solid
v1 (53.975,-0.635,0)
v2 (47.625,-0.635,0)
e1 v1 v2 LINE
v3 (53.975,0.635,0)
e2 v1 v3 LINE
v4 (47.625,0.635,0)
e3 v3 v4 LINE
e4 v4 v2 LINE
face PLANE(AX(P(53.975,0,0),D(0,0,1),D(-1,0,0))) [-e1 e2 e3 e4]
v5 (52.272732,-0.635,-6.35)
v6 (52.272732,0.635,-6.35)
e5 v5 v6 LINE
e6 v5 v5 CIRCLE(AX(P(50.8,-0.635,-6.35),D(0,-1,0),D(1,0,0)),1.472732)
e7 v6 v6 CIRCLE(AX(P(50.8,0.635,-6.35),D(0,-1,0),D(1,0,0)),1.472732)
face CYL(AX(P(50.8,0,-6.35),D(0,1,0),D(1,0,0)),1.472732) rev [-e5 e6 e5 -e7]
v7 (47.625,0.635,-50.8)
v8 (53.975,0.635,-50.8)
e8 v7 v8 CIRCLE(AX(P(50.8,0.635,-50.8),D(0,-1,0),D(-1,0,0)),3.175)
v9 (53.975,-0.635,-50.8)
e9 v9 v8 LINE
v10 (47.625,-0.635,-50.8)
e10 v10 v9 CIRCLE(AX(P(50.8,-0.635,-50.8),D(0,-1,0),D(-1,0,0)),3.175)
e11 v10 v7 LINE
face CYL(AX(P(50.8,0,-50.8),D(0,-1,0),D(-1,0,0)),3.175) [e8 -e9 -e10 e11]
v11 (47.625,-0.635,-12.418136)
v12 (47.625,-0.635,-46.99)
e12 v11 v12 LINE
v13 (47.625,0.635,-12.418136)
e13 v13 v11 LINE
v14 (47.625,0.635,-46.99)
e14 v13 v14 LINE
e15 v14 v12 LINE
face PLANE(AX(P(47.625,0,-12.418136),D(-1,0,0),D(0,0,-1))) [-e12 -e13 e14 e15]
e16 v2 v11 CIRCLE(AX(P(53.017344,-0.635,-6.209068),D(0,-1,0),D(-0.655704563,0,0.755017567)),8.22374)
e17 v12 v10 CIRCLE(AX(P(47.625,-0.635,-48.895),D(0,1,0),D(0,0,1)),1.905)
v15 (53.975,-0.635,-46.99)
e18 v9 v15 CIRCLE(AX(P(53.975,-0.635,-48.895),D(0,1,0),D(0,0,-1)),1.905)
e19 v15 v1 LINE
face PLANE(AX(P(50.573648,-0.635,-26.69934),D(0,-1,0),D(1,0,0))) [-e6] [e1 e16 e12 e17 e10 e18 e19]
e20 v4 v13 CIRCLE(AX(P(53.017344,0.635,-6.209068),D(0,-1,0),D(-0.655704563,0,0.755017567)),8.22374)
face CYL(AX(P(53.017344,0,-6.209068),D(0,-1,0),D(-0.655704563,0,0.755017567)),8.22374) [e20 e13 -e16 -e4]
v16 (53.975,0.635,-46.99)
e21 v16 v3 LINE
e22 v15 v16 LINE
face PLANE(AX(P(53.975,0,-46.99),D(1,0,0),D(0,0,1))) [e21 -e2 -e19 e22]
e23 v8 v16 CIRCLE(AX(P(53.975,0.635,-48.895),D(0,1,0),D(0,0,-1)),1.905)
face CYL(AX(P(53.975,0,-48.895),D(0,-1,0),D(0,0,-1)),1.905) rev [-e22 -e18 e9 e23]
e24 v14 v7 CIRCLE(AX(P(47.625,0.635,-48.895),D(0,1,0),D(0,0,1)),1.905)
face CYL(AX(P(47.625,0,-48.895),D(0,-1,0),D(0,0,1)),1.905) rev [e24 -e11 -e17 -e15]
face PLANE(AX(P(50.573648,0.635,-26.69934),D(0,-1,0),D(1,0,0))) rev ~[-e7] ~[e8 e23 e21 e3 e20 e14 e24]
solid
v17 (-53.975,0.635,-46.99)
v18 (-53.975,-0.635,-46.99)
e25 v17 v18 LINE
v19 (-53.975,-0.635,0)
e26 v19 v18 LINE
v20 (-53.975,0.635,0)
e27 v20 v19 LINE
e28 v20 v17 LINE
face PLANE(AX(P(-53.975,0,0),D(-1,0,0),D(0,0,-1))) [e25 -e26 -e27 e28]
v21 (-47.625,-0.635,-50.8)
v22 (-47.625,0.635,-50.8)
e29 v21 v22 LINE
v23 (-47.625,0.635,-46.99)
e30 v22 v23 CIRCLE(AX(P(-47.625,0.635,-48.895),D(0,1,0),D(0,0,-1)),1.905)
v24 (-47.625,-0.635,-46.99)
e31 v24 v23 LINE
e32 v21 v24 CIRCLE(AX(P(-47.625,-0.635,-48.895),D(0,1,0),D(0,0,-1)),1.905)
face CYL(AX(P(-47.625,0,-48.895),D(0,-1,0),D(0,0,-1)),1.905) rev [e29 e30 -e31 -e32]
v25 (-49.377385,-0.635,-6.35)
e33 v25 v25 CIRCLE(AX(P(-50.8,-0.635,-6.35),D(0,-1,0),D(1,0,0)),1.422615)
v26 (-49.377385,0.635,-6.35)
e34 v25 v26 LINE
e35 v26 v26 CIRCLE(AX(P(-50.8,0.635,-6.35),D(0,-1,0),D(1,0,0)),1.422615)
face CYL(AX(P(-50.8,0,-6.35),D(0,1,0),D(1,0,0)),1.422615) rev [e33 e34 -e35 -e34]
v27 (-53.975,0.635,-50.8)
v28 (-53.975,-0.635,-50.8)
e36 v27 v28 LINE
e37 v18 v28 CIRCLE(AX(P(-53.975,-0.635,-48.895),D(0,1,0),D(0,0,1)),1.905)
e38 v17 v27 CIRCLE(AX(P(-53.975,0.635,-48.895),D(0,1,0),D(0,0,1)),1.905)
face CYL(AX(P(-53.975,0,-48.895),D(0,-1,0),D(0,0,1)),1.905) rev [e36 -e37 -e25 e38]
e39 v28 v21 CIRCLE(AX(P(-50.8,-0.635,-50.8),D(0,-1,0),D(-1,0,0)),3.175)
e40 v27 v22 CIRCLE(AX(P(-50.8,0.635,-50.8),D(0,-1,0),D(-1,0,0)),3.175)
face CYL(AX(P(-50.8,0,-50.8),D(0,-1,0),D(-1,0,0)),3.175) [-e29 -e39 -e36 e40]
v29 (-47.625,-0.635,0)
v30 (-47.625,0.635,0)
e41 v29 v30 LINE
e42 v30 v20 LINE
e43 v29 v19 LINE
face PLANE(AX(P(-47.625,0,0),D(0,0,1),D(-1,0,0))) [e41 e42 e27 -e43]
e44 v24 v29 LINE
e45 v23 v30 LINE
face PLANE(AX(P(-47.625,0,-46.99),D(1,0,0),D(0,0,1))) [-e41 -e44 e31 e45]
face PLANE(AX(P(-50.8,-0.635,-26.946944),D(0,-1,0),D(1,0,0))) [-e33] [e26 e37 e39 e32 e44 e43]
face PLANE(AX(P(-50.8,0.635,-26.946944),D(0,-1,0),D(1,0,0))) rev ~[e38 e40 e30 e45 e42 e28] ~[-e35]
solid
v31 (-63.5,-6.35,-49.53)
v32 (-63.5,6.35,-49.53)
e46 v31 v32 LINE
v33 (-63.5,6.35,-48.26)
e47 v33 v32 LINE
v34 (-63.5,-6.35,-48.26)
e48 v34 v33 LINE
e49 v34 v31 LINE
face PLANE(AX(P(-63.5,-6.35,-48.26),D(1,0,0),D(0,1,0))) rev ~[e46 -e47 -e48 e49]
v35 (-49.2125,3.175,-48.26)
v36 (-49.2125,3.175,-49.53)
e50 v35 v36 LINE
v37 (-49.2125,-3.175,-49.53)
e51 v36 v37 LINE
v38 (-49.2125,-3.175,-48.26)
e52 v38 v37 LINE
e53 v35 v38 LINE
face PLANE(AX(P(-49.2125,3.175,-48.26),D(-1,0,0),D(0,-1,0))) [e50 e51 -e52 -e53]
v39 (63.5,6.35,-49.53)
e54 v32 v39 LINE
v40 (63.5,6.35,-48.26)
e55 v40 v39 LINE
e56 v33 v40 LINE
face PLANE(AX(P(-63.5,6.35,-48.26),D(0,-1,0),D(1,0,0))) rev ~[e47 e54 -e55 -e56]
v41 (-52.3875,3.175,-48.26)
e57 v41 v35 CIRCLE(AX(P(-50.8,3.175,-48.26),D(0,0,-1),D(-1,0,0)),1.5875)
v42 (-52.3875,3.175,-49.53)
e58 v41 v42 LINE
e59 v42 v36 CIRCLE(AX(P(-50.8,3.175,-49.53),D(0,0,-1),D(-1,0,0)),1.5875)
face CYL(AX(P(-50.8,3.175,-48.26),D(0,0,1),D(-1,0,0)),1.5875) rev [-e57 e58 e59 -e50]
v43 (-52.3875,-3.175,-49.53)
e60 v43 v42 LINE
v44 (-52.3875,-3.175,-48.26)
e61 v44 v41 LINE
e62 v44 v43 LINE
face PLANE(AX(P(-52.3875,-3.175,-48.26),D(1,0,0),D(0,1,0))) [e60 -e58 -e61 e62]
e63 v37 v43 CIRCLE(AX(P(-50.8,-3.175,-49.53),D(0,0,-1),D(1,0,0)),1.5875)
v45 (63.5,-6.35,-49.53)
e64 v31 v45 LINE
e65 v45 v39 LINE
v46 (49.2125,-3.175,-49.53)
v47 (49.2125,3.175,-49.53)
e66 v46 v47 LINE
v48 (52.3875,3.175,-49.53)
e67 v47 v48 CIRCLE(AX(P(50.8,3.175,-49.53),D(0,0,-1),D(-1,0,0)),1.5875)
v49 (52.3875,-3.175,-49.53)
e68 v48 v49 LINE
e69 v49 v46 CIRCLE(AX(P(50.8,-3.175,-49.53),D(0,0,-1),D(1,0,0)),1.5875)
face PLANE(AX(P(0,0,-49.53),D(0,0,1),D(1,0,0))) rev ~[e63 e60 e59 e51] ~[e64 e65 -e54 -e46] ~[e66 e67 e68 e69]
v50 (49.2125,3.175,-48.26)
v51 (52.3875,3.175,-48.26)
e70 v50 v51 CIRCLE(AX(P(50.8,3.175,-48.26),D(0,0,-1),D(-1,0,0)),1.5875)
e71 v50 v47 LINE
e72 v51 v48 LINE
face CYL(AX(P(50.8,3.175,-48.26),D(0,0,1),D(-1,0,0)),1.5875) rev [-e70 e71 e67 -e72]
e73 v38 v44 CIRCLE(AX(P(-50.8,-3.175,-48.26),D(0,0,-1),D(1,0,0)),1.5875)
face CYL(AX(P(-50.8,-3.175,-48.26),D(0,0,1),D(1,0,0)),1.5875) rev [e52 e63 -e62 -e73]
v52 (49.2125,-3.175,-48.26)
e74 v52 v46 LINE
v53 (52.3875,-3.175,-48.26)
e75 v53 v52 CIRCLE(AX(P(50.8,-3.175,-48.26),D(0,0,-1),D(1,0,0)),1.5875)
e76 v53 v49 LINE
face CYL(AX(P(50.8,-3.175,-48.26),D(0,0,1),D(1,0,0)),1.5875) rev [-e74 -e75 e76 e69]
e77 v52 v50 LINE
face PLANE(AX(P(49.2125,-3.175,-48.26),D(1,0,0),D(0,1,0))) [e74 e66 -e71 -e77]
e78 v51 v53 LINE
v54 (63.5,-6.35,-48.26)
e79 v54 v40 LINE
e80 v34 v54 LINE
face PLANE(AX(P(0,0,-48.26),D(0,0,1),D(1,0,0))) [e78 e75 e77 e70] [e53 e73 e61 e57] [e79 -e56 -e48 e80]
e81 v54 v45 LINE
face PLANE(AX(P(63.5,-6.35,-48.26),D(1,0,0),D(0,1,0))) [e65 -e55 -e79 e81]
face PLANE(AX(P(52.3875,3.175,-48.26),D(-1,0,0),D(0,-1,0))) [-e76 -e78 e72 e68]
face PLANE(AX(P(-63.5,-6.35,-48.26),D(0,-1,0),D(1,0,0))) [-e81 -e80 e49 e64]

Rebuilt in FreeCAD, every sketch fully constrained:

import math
import FreeCAD as App
import Part
import Sketcher
from FreeCAD import Vector
Q = App.Units.Quantity


def add_polygon(sketch, points):
    """Adds a closed chain of lines whose ends are joined by coincident constraints."""
    first, n = sketch.GeometryCount, len(points)
    for a, b in zip(points, points[1:] + points[:1]):
        sketch.addGeometry(Part.LineSegment(App.Vector(*a, 0), App.Vector(*b, 0)), False)
    for i in range(n):
        sketch.addConstraint(Sketcher.Constraint("Coincident", first + i, 2, first + (i + 1) % n, 1))

doc = App.newDocument("Part")
body = doc.addObject("PartDesign::Body", "Body")

sketch1 = doc.addObject("Sketcher::SketchObject", "Sketch")
body.addObject(sketch1)
sketch1.AttachmentSupport = (doc.XZ_Plane, [""])
sketch1.MapMode = "FlatFace"
sketch1.addGeometry(Part.LineSegment(Vector(-47.6, 0, 0), Vector(-54, 0, 0)), False)
sketch1.addGeometry(Part.LineSegment(Vector(-54, 0, 0), Vector(-54, -47, 0)), False)
sketch1.addGeometry(Part.ArcOfCircle(Part.Circle(Vector(-54, -48.9, 0), Vector(0, 0, 1), 1.9), math.radians(-90), math.radians(90)), False)
sketch1.addGeometry(Part.ArcOfCircle(Part.Circle(Vector(-50.8, -50.8, 0), Vector(0, 0, 1), 3.2), math.radians(180), math.radians(360)), False)
sketch1.addGeometry(Part.ArcOfCircle(Part.Circle(Vector(-47.6, -48.9, 0), Vector(0, 0, 1), 1.9), math.radians(90), math.radians(270)), False)
sketch1.addGeometry(Part.LineSegment(Vector(-47.6, -47, 0), Vector(-47.6, 0, 0)), False)
sketch1.addGeometry(Part.Circle(Vector(-50.8, -6.3, 0), Vector(0, 0, 1), 1.4), False)
sketch1.addConstraint(Sketcher.Constraint("Coincident", 0, 2, 1, 1))
sketch1.addConstraint(Sketcher.Constraint("Coincident", 1, 2, 2, 2))
sketch1.addConstraint(Sketcher.Constraint("Coincident", 2, 1, 3, 1))
sketch1.addConstraint(Sketcher.Constraint("Coincident", 3, 2, 4, 2))
sketch1.addConstraint(Sketcher.Constraint("Coincident", 4, 1, 5, 1))
sketch1.addConstraint(Sketcher.Constraint("Coincident", 5, 2, 0, 1))
sketch1.addConstraint(Sketcher.Constraint("Horizontal", 0))
sketch1.addConstraint(Sketcher.Constraint("Vertical", 1))
sketch1.addConstraint(Sketcher.Constraint("Vertical", 5))
sketch1.addConstraint(Sketcher.Constraint("Equal", 2, 4))
sketch1.addConstraint(Sketcher.Constraint("PointOnObject", 0, 2, -1))
sketch1.addConstraint(Sketcher.Constraint("Horizontal", 2, 3, 4, 3))
sketch1.addConstraint(Sketcher.Constraint("Horizontal", 3, 3, 2, 1))
sketch1.addConstraint(Sketcher.Constraint("Vertical", 3, 3, 6, 3))
sketch1.addConstraint(Sketcher.Constraint("Vertical", 2, 3, 0, 2))
sketch1.addConstraint(Sketcher.Constraint("Vertical", 1, 2, 2, 1))
sketch1.addConstraint(Sketcher.Constraint("Vertical", 4, 3, 3, 2))
sketch1.addConstraint(Sketcher.Constraint("Vertical", 3, 2, 4, 1))
sketch1.addConstraint(Sketcher.Constraint("DistanceX", 3, 3, -1, 1, Q("2 in")))
sketch1.addConstraint(Sketcher.Constraint("DistanceY", 3, 3, -1, 1, Q("2 in")))
sketch1.addConstraint(Sketcher.Constraint("Radius", 2, Q("0.075 in")))
sketch1.addConstraint(Sketcher.Constraint("Radius", 3, Q("0.125 in")))
sketch1.addConstraint(Sketcher.Constraint("DistanceY", 1, 2, 6, 3, Q("1.6 in")))
sketch1.addConstraint(Sketcher.Constraint("Diameter", 6, 2.84523))
pad1 = doc.addObject("PartDesign::Pad", "Pad")
body.addObject(pad1)
pad1.Profile = sketch1
pad1.Length = Q("0.05 in")
pad1.Midplane = True
body2 = doc.addObject("PartDesign::Body", "Body001")

sketch2 = doc.addObject("Sketcher::SketchObject", "Sketch001")
body2.addObject(sketch2)
sketch2.AttachmentSupport = (doc.getObject("XY_Plane001"), [""])
sketch2.MapMode = "FlatFace"
sketch2.AttachmentOffset = App.Placement(Vector(0, 0, -1.9 * 25.4), App.Rotation())
add_polygon(sketch2, [(-63.5, 6.3), (-63.5, -6.3), (63.5, -6.3), (63.5, 6.3)])
sketch2.addGeometry(Part.ArcOfCircle(Part.Circle(Vector(-50.8, 3.2, 0), Vector(0, 0, 1), 1.6), math.radians(0), math.radians(180)), False)
sketch2.addGeometry(Part.LineSegment(Vector(-49.2, 3.2, 0), Vector(-49.2, -3.2, 0)), False)
sketch2.addGeometry(Part.ArcOfCircle(Part.Circle(Vector(-50.8, -3.2, 0), Vector(0, 0, 1), 1.6), math.radians(180), math.radians(360)), False)
sketch2.addGeometry(Part.LineSegment(Vector(-52.4, -3.2, 0), Vector(-52.4, 3.2, 0)), False)
sketch2.addGeometry(Part.LineSegment(Vector(49.2, -3.2, 0), Vector(49.2, 3.2, 0)), False)
sketch2.addGeometry(Part.ArcOfCircle(Part.Circle(Vector(50.8, 3.2, 0), Vector(0, 0, 1), 1.6), math.radians(0), math.radians(180)), False)
sketch2.addGeometry(Part.LineSegment(Vector(52.4, 3.2, 0), Vector(52.4, -3.2, 0)), False)
sketch2.addGeometry(Part.ArcOfCircle(Part.Circle(Vector(50.8, -3.2, 0), Vector(0, 0, 1), 1.6), math.radians(180), math.radians(360)), False)
sketch2.addConstraint(Sketcher.Constraint("Tangent", 4, 1, 5, 1))
sketch2.addConstraint(Sketcher.Constraint("Tangent", 5, 2, 6, 2))
sketch2.addConstraint(Sketcher.Constraint("Tangent", 6, 1, 7, 1))
sketch2.addConstraint(Sketcher.Constraint("Tangent", 7, 2, 4, 2))
sketch2.addConstraint(Sketcher.Constraint("Tangent", 8, 2, 9, 2))
sketch2.addConstraint(Sketcher.Constraint("Tangent", 9, 1, 10, 1))
sketch2.addConstraint(Sketcher.Constraint("Tangent", 10, 2, 11, 2))
sketch2.addConstraint(Sketcher.Constraint("Tangent", 11, 1, 8, 1))
sketch2.addConstraint(Sketcher.Constraint("Vertical", 0))
sketch2.addConstraint(Sketcher.Constraint("Horizontal", 1))
sketch2.addConstraint(Sketcher.Constraint("Vertical", 2))
sketch2.addConstraint(Sketcher.Constraint("Horizontal", 3))
sketch2.addConstraint(Sketcher.Constraint("Vertical", 5))
sketch2.addConstraint(Sketcher.Constraint("Vertical", 7))
sketch2.addConstraint(Sketcher.Constraint("Vertical", 8))
sketch2.addConstraint(Sketcher.Constraint("Vertical", 10))
sketch2.addConstraint(Sketcher.Constraint("Equal", 6, 9))
sketch2.addConstraint(Sketcher.Constraint("Symmetric", 6, 3, 9, 3, -1, 1))
sketch2.addConstraint(Sketcher.Constraint("Symmetric", 0, 2, 2, 2, -1, 1))
sketch2.addConstraint(Sketcher.Constraint("Horizontal", 4, 3, 9, 3))
sketch2.addConstraint(Sketcher.Constraint("Horizontal", 6, 3, 11, 3))
sketch2.addConstraint(Sketcher.Constraint("DistanceX", 1, 1, 1, 2, Q("5 in")))
sketch2.addConstraint(Sketcher.Constraint("DistanceY", 0, 2, 0, 1, Q("0.5 in")))
sketch2.addConstraint(Sketcher.Constraint("DistanceX", 4, 3, -1, 1, Q("2 in")))
sketch2.addConstraint(Sketcher.Constraint("Radius", 4, Q("0.0625 in")))
sketch2.addConstraint(Sketcher.Constraint("DistanceY", 5, 2, 5, 1, Q("0.25 in")))
pad2 = doc.addObject("PartDesign::Pad", "Pad001")
body2.addObject(pad2)
pad2.Profile = sketch2
pad2.Length = Q("0.05 in")
pad2.Reversed = True
body3 = doc.addObject("PartDesign::Body", "Body002")

sketch3 = doc.addObject("Sketcher::SketchObject", "Sketch002")
body3.addObject(sketch3)
sketch3.AttachmentSupport = (doc.getObject("XZ_Plane002"), [""])
sketch3.MapMode = "FlatFace"
sketch3.addGeometry(Part.LineSegment(Vector(54, 0, 0), Vector(47.6, 0, 0)), False)
sketch3.addGeometry(Part.ArcOfCircle(Part.Circle(Vector(53, -6.2, 0), Vector(0, 0, 1), 8.2), math.radians(131), math.radians(229)), False)
sketch3.addGeometry(Part.LineSegment(Vector(47.6, -12.4, 0), Vector(47.6, -47, 0)), False)
sketch3.addGeometry(Part.ArcOfCircle(Part.Circle(Vector(47.6, -48.9, 0), Vector(0, 0, 1), 1.9), math.radians(-90), math.radians(90)), False)
sketch3.addGeometry(Part.ArcOfCircle(Part.Circle(Vector(50.8, -50.8, 0), Vector(0, 0, 1), 3.2), math.radians(180), math.radians(360)), False)
sketch3.addGeometry(Part.ArcOfCircle(Part.Circle(Vector(54, -48.9, 0), Vector(0, 0, 1), 1.9), math.radians(90), math.radians(270)), False)
sketch3.addGeometry(Part.LineSegment(Vector(54, -47, 0), Vector(54, 0, 0)), False)
sketch3.addGeometry(Part.Circle(Vector(50.8, -6.3, 0), Vector(0, 0, 1), 1.5), False)
sketch3.addConstraint(Sketcher.Constraint("Coincident", 0, 2, 1, 1))
sketch3.addConstraint(Sketcher.Constraint("Coincident", 1, 2, 2, 1))
sketch3.addConstraint(Sketcher.Constraint("Coincident", 2, 2, 3, 2))
sketch3.addConstraint(Sketcher.Constraint("Coincident", 3, 1, 4, 1))
sketch3.addConstraint(Sketcher.Constraint("Coincident", 4, 2, 5, 2))
sketch3.addConstraint(Sketcher.Constraint("Coincident", 5, 1, 6, 1))
sketch3.addConstraint(Sketcher.Constraint("Coincident", 6, 2, 0, 1))
sketch3.addConstraint(Sketcher.Constraint("Horizontal", 0))
sketch3.addConstraint(Sketcher.Constraint("Vertical", 2))
sketch3.addConstraint(Sketcher.Constraint("Vertical", 6))
sketch3.addConstraint(Sketcher.Constraint("Equal", 3, 5))
sketch3.addConstraint(Sketcher.Constraint("PointOnObject", 0, 2, -1))
sketch3.addConstraint(Sketcher.Constraint("Horizontal", 3, 3, 5, 3))
sketch3.addConstraint(Sketcher.Constraint("Horizontal", 4, 3, 3, 1))
sketch3.addConstraint(Sketcher.Constraint("Vertical", 4, 3, 7, 3))
sketch3.addConstraint(Sketcher.Constraint("Vertical", 3, 3, 0, 2))
sketch3.addConstraint(Sketcher.Constraint("Vertical", 0, 2, 1, 2))
sketch3.addConstraint(Sketcher.Constraint("Vertical", 2, 2, 3, 1))
sketch3.addConstraint(Sketcher.Constraint("Vertical", 5, 3, 4, 2))
sketch3.addConstraint(Sketcher.Constraint("Vertical", 4, 2, 5, 1))
sketch3.addConstraint(Sketcher.Constraint("DistanceX", -1, 1, 4, 3, Q("2 in")))
sketch3.addConstraint(Sketcher.Constraint("DistanceY", 4, 3, -1, 1, Q("2 in")))
sketch3.addConstraint(Sketcher.Constraint("Radius", 3, Q("0.075 in")))
sketch3.addConstraint(Sketcher.Constraint("Radius", 4, Q("0.125 in")))
sketch3.addConstraint(Sketcher.Constraint("DistanceY", 2, 2, 7, 3, Q("1.6 in")))
sketch3.addConstraint(Sketcher.Constraint("Radius", 1, 8.22374))
sketch3.addConstraint(Sketcher.Constraint("Diameter", 7, 2.945465))
sketch3.addConstraint(Sketcher.Constraint("DistanceY", 2, 2, 2, 1, 34.571864))
pad3 = doc.addObject("PartDesign::Pad", "Pad002")
body3.addObject(pad3)
pad3.Profile = sketch3
pad3.Length = Q("0.05 in")
pad3.Midplane = True

doc.recompute()
